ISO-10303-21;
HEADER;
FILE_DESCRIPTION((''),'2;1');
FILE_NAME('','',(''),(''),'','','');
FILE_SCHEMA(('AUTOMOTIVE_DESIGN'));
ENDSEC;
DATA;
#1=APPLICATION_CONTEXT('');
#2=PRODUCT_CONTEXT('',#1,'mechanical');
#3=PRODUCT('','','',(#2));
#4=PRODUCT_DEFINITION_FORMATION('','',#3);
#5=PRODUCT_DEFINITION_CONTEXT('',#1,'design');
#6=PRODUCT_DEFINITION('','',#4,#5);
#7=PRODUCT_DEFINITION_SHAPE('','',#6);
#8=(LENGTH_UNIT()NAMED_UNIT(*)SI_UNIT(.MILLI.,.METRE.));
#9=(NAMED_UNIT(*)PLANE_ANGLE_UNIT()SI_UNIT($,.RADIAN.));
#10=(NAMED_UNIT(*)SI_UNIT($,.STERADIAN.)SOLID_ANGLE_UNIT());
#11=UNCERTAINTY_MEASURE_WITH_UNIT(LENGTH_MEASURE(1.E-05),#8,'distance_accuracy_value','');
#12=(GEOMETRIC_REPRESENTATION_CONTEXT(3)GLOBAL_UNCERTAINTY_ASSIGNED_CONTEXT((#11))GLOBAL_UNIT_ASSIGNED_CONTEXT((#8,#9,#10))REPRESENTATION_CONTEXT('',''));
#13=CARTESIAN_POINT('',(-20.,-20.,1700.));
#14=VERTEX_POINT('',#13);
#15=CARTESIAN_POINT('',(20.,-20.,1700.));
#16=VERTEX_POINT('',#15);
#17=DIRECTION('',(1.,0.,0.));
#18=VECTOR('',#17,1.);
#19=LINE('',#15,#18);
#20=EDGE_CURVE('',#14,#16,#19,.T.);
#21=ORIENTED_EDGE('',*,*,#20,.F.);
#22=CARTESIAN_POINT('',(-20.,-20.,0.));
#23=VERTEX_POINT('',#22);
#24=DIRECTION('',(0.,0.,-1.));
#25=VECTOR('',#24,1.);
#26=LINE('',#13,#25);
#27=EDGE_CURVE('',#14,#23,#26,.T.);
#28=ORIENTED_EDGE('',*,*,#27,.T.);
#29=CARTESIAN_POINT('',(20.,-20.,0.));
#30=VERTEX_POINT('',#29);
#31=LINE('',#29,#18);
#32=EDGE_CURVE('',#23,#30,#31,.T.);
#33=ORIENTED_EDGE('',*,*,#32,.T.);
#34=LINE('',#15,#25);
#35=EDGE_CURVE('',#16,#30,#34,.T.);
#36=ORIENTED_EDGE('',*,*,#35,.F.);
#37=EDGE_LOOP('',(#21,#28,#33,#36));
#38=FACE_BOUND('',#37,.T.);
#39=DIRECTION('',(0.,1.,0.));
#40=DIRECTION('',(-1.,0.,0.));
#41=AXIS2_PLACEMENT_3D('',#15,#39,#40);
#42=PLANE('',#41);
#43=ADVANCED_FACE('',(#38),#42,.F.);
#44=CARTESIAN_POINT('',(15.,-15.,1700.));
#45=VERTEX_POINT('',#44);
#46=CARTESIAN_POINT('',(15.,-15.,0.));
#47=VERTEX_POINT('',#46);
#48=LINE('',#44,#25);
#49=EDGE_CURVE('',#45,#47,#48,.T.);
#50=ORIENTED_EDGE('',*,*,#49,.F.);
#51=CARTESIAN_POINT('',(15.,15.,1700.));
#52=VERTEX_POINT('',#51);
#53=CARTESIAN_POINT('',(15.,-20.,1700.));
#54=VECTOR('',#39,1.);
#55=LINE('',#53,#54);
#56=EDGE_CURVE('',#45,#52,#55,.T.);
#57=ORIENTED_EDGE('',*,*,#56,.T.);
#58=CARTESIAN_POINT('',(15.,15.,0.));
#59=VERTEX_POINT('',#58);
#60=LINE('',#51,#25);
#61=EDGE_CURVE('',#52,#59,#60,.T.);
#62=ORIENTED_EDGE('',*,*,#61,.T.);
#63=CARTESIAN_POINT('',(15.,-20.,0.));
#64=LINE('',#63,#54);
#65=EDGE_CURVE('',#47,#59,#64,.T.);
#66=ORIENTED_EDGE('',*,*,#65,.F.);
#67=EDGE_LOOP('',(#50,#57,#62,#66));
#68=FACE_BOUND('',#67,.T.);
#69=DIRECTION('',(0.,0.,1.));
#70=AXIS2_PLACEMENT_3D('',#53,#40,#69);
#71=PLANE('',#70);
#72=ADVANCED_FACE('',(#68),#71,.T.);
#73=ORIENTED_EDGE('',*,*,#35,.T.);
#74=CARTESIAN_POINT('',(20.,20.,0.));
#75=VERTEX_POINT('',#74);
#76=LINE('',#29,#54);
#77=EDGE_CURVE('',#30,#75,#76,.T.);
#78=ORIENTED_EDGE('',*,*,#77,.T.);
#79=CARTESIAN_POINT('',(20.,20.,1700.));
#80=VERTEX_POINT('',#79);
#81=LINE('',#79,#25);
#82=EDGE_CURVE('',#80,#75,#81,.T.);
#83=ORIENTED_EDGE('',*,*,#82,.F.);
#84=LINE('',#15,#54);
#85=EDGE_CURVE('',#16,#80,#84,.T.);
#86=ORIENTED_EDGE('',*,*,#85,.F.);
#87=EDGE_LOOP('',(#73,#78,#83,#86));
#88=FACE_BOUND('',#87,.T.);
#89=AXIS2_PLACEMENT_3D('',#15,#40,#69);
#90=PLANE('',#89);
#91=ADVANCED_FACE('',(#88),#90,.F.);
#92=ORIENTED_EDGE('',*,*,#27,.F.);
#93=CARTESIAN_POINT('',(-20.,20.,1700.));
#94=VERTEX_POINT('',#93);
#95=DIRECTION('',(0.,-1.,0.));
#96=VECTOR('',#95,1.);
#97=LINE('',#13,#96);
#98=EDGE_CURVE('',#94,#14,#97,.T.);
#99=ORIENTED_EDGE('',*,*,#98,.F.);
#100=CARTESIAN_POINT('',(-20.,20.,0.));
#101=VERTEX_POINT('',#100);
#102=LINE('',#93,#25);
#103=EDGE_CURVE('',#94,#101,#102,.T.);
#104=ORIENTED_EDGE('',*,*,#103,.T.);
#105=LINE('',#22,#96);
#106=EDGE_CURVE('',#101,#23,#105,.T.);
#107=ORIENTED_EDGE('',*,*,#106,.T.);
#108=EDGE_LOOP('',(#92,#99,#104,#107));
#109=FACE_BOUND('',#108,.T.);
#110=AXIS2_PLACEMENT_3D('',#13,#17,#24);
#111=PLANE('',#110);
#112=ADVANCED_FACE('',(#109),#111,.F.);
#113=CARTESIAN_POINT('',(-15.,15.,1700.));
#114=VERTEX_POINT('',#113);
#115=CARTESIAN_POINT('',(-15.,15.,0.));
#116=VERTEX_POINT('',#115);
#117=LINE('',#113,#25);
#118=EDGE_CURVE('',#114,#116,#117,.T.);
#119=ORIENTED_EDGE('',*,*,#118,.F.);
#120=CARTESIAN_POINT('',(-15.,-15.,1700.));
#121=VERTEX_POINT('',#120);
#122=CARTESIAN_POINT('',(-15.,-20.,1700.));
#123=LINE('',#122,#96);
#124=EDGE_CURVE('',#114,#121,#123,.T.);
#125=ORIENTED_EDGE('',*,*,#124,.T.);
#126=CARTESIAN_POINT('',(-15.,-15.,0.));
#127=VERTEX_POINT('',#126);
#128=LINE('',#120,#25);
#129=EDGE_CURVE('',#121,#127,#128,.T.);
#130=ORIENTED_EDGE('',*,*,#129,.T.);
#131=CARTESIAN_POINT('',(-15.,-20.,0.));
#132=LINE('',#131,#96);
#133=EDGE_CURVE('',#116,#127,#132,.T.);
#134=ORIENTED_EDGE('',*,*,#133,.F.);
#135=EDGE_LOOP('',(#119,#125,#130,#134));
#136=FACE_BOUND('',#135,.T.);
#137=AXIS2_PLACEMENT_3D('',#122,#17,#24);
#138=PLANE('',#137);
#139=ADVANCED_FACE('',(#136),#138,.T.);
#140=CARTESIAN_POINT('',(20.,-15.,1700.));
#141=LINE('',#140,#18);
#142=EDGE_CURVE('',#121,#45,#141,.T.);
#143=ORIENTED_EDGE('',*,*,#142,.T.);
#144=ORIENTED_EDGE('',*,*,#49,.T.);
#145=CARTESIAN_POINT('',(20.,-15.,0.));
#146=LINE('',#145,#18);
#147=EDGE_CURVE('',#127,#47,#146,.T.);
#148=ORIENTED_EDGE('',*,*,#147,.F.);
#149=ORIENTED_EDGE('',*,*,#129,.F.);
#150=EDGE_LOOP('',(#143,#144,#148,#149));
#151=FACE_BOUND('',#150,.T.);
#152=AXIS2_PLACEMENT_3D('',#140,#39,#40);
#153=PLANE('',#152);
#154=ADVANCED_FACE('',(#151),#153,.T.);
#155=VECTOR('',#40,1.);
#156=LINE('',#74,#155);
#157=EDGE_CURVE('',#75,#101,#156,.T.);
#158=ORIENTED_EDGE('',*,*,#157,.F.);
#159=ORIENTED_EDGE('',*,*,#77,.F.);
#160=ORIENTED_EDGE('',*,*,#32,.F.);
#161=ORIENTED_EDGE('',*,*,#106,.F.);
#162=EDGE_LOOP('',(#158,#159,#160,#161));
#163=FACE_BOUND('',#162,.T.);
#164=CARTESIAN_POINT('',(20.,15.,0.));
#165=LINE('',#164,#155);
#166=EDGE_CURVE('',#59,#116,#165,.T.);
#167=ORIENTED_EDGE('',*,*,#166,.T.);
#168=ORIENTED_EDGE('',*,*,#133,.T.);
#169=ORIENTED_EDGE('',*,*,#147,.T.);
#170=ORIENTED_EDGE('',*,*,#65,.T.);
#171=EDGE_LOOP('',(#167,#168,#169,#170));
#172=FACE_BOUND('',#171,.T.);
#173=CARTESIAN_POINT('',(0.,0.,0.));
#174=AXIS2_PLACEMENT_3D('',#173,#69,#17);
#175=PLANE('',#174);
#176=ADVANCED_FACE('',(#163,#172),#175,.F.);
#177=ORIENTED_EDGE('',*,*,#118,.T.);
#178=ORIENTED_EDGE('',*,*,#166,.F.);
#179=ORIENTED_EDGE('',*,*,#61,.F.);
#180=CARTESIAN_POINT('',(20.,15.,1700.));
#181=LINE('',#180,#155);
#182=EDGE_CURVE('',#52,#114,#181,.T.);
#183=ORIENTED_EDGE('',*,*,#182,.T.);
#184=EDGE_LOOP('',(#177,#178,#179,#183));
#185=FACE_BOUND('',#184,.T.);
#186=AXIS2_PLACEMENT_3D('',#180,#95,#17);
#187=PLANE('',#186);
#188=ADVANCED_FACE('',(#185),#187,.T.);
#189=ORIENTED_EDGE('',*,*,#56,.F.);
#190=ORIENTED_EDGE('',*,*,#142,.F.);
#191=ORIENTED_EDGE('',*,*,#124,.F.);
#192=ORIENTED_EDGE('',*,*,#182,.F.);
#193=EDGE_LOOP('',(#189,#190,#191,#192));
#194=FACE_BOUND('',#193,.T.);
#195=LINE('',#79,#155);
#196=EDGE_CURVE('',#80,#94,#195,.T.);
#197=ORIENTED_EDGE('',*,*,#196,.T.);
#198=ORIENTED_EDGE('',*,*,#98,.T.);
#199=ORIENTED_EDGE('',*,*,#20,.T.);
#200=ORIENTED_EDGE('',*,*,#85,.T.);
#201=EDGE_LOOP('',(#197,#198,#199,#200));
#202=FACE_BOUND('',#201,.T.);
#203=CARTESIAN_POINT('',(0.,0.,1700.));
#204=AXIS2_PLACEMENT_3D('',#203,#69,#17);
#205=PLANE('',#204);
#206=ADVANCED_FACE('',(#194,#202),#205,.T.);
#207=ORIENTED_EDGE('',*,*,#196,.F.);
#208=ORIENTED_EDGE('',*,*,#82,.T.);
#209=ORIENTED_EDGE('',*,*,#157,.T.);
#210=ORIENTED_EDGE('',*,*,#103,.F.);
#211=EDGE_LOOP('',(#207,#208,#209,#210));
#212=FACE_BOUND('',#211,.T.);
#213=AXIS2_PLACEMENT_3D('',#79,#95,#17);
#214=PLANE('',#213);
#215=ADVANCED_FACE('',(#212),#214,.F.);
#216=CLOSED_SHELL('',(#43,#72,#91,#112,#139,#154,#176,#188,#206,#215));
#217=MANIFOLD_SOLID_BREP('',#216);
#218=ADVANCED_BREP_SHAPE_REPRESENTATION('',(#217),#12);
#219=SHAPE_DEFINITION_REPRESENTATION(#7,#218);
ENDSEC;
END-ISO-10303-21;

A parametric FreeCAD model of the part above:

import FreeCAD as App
import Part
import Sketcher
from FreeCAD import Vector
Q = App.Units.Quantity


def faces_at(feature, points):
    """Names of the faces that lie closest to the given points."""
    faces = feature.Shape.Faces
    near = lambda p: min(range(len(faces)), key=lambda i: faces[i].distToShape(Part.Vertex(*p))[0])
    return sorted({f"Face{near(p) + 1}" for p in points})

doc = App.newDocument("Part")
body = doc.addObject("PartDesign::Body", "Body")

# Sketch on XY plane
sketch1 = body.newObject("Sketcher::SketchObject", "Sketch")
sketch1.AttachmentSupport = (doc.getObject("XY_Plane"), [""])
sketch1.MapMode = "FlatFace"
sketch1.addGeometry([
    Part.LineSegment(Vector(-20, 20, 0), Vector(-20, -20, 0)),
    Part.LineSegment(Vector(-20, -20, 0), Vector(20, -20, 0)),
    Part.LineSegment(Vector(20, -20, 0), Vector(20, 20, 0)),
    Part.LineSegment(Vector(20, 20, 0), Vector(-20, 20, 0)),
], False)
sketch1.addConstraint([
    Sketcher.Constraint("Coincident", 0, 2, 1, 1),
    Sketcher.Constraint("Coincident", 1, 2, 2, 1),
    Sketcher.Constraint("Coincident", 2, 2, 3, 1),
    Sketcher.Constraint("Coincident", 3, 2, 0, 1),
    Sketcher.Constraint("Vertical", 0),
    Sketcher.Constraint("Horizontal", 1),
    Sketcher.Constraint("Vertical", 2),
    Sketcher.Constraint("Horizontal", 3),
    Sketcher.Constraint("Symmetric", 0, 2, 2, 2, -1, 1),
    Sketcher.Constraint("Equal", 3, 0),
    Sketcher.Constraint("DistanceX", 1, 1, 1, 2, Q("40 mm")),
])
pad1 = body.newObject("PartDesign::Pad", "Pad")
pad1.Profile = sketch1
pad1.Length = 1700
doc.recompute()

thickness = body.newObject("PartDesign::Thickness", "Thickness")
thickness.Base = (pad1, faces_at(pad1, [(0, 0, 1700), (0, 0, 0)]))
thickness.Value = 5
thickness.Reversed = True
thickness.Join = "Intersection"

doc.recompute()
